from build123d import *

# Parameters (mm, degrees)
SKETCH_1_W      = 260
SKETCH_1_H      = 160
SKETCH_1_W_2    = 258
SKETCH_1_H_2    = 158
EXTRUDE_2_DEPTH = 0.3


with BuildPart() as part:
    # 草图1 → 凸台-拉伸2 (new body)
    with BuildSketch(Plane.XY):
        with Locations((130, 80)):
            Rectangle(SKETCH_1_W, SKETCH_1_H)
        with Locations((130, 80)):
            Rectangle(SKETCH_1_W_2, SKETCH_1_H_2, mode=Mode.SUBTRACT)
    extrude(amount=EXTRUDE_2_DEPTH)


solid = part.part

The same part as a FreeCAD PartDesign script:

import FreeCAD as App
import Part
import Sketcher
from FreeCAD import Vector


def add_polygon(sketch, points):
    """Adds a closed chain of lines whose ends are joined by coincident constraints."""
    first, n = sketch.GeometryCount, len(points)
    for a, b in zip(points, points[1:] + points[:1]):
        sketch.addGeometry(Part.LineSegment(App.Vector(*a, 0), App.Vector(*b, 0)), False)
    for i in range(n):
        sketch.addConstraint(Sketcher.Constraint("Coincident", first + i, 2, first + (i + 1) % n, 1))

doc = App.newDocument("Part")
body = doc.addObject("PartDesign::Body", "Body")

sketch1 = doc.addObject("Sketcher::SketchObject", "Sketch")
body.addObject(sketch1)
sketch1.AttachmentSupport = (doc.XY_Plane, [""])
sketch1.MapMode = "FlatFace"
add_polygon(sketch1, [(0, 160), (0, 0), (260, 0), (260, 160)])
add_polygon(sketch1, [(259, 1), (1, 1), (1, 159), (259, 159)])
sketch1.addConstraint(Sketcher.Constraint("Vertical", 0))
sketch1.addConstraint(Sketcher.Constraint("Horizontal", 1))
sketch1.addConstraint(Sketcher.Constraint("Vertical", 2))
sketch1.addConstraint(Sketcher.Constraint("Horizontal", 3))
sketch1.addConstraint(Sketcher.Constraint("Horizontal", 4))
sketch1.addConstraint(Sketcher.Constraint("Vertical", 5))
sketch1.addConstraint(Sketcher.Constraint("Horizontal", 6))
sketch1.addConstraint(Sketcher.Constraint("Vertical", 7))
sketch1.addConstraint(Sketcher.Constraint("Coincident", 0, 2, -1, 1))
sketch1.addConstraint(Sketcher.Constraint("DistanceX", 1, 1, 1, 2, 260.0))
sketch1.addConstraint(Sketcher.Constraint("DistanceX", 4, 2, 4, 1, 258.0))
sketch1.addConstraint(Sketcher.Constraint("DistanceY", 0, 2, 0, 1, 160.0))
sketch1.addConstraint(Sketcher.Constraint("DistanceY", 5, 1, 5, 2, 158.0))
sketch1.addConstraint(Sketcher.Constraint("DistanceX", -1, 1, 4, 2, 1.0))
sketch1.addConstraint(Sketcher.Constraint("DistanceY", -1, 1, 4, 2, 1.0))
pad1 = doc.addObject("PartDesign::Pad", "Pad")
body.addObject(pad1)
pad1.Profile = sketch1
pad1.Length = 0.3

doc.recompute()
